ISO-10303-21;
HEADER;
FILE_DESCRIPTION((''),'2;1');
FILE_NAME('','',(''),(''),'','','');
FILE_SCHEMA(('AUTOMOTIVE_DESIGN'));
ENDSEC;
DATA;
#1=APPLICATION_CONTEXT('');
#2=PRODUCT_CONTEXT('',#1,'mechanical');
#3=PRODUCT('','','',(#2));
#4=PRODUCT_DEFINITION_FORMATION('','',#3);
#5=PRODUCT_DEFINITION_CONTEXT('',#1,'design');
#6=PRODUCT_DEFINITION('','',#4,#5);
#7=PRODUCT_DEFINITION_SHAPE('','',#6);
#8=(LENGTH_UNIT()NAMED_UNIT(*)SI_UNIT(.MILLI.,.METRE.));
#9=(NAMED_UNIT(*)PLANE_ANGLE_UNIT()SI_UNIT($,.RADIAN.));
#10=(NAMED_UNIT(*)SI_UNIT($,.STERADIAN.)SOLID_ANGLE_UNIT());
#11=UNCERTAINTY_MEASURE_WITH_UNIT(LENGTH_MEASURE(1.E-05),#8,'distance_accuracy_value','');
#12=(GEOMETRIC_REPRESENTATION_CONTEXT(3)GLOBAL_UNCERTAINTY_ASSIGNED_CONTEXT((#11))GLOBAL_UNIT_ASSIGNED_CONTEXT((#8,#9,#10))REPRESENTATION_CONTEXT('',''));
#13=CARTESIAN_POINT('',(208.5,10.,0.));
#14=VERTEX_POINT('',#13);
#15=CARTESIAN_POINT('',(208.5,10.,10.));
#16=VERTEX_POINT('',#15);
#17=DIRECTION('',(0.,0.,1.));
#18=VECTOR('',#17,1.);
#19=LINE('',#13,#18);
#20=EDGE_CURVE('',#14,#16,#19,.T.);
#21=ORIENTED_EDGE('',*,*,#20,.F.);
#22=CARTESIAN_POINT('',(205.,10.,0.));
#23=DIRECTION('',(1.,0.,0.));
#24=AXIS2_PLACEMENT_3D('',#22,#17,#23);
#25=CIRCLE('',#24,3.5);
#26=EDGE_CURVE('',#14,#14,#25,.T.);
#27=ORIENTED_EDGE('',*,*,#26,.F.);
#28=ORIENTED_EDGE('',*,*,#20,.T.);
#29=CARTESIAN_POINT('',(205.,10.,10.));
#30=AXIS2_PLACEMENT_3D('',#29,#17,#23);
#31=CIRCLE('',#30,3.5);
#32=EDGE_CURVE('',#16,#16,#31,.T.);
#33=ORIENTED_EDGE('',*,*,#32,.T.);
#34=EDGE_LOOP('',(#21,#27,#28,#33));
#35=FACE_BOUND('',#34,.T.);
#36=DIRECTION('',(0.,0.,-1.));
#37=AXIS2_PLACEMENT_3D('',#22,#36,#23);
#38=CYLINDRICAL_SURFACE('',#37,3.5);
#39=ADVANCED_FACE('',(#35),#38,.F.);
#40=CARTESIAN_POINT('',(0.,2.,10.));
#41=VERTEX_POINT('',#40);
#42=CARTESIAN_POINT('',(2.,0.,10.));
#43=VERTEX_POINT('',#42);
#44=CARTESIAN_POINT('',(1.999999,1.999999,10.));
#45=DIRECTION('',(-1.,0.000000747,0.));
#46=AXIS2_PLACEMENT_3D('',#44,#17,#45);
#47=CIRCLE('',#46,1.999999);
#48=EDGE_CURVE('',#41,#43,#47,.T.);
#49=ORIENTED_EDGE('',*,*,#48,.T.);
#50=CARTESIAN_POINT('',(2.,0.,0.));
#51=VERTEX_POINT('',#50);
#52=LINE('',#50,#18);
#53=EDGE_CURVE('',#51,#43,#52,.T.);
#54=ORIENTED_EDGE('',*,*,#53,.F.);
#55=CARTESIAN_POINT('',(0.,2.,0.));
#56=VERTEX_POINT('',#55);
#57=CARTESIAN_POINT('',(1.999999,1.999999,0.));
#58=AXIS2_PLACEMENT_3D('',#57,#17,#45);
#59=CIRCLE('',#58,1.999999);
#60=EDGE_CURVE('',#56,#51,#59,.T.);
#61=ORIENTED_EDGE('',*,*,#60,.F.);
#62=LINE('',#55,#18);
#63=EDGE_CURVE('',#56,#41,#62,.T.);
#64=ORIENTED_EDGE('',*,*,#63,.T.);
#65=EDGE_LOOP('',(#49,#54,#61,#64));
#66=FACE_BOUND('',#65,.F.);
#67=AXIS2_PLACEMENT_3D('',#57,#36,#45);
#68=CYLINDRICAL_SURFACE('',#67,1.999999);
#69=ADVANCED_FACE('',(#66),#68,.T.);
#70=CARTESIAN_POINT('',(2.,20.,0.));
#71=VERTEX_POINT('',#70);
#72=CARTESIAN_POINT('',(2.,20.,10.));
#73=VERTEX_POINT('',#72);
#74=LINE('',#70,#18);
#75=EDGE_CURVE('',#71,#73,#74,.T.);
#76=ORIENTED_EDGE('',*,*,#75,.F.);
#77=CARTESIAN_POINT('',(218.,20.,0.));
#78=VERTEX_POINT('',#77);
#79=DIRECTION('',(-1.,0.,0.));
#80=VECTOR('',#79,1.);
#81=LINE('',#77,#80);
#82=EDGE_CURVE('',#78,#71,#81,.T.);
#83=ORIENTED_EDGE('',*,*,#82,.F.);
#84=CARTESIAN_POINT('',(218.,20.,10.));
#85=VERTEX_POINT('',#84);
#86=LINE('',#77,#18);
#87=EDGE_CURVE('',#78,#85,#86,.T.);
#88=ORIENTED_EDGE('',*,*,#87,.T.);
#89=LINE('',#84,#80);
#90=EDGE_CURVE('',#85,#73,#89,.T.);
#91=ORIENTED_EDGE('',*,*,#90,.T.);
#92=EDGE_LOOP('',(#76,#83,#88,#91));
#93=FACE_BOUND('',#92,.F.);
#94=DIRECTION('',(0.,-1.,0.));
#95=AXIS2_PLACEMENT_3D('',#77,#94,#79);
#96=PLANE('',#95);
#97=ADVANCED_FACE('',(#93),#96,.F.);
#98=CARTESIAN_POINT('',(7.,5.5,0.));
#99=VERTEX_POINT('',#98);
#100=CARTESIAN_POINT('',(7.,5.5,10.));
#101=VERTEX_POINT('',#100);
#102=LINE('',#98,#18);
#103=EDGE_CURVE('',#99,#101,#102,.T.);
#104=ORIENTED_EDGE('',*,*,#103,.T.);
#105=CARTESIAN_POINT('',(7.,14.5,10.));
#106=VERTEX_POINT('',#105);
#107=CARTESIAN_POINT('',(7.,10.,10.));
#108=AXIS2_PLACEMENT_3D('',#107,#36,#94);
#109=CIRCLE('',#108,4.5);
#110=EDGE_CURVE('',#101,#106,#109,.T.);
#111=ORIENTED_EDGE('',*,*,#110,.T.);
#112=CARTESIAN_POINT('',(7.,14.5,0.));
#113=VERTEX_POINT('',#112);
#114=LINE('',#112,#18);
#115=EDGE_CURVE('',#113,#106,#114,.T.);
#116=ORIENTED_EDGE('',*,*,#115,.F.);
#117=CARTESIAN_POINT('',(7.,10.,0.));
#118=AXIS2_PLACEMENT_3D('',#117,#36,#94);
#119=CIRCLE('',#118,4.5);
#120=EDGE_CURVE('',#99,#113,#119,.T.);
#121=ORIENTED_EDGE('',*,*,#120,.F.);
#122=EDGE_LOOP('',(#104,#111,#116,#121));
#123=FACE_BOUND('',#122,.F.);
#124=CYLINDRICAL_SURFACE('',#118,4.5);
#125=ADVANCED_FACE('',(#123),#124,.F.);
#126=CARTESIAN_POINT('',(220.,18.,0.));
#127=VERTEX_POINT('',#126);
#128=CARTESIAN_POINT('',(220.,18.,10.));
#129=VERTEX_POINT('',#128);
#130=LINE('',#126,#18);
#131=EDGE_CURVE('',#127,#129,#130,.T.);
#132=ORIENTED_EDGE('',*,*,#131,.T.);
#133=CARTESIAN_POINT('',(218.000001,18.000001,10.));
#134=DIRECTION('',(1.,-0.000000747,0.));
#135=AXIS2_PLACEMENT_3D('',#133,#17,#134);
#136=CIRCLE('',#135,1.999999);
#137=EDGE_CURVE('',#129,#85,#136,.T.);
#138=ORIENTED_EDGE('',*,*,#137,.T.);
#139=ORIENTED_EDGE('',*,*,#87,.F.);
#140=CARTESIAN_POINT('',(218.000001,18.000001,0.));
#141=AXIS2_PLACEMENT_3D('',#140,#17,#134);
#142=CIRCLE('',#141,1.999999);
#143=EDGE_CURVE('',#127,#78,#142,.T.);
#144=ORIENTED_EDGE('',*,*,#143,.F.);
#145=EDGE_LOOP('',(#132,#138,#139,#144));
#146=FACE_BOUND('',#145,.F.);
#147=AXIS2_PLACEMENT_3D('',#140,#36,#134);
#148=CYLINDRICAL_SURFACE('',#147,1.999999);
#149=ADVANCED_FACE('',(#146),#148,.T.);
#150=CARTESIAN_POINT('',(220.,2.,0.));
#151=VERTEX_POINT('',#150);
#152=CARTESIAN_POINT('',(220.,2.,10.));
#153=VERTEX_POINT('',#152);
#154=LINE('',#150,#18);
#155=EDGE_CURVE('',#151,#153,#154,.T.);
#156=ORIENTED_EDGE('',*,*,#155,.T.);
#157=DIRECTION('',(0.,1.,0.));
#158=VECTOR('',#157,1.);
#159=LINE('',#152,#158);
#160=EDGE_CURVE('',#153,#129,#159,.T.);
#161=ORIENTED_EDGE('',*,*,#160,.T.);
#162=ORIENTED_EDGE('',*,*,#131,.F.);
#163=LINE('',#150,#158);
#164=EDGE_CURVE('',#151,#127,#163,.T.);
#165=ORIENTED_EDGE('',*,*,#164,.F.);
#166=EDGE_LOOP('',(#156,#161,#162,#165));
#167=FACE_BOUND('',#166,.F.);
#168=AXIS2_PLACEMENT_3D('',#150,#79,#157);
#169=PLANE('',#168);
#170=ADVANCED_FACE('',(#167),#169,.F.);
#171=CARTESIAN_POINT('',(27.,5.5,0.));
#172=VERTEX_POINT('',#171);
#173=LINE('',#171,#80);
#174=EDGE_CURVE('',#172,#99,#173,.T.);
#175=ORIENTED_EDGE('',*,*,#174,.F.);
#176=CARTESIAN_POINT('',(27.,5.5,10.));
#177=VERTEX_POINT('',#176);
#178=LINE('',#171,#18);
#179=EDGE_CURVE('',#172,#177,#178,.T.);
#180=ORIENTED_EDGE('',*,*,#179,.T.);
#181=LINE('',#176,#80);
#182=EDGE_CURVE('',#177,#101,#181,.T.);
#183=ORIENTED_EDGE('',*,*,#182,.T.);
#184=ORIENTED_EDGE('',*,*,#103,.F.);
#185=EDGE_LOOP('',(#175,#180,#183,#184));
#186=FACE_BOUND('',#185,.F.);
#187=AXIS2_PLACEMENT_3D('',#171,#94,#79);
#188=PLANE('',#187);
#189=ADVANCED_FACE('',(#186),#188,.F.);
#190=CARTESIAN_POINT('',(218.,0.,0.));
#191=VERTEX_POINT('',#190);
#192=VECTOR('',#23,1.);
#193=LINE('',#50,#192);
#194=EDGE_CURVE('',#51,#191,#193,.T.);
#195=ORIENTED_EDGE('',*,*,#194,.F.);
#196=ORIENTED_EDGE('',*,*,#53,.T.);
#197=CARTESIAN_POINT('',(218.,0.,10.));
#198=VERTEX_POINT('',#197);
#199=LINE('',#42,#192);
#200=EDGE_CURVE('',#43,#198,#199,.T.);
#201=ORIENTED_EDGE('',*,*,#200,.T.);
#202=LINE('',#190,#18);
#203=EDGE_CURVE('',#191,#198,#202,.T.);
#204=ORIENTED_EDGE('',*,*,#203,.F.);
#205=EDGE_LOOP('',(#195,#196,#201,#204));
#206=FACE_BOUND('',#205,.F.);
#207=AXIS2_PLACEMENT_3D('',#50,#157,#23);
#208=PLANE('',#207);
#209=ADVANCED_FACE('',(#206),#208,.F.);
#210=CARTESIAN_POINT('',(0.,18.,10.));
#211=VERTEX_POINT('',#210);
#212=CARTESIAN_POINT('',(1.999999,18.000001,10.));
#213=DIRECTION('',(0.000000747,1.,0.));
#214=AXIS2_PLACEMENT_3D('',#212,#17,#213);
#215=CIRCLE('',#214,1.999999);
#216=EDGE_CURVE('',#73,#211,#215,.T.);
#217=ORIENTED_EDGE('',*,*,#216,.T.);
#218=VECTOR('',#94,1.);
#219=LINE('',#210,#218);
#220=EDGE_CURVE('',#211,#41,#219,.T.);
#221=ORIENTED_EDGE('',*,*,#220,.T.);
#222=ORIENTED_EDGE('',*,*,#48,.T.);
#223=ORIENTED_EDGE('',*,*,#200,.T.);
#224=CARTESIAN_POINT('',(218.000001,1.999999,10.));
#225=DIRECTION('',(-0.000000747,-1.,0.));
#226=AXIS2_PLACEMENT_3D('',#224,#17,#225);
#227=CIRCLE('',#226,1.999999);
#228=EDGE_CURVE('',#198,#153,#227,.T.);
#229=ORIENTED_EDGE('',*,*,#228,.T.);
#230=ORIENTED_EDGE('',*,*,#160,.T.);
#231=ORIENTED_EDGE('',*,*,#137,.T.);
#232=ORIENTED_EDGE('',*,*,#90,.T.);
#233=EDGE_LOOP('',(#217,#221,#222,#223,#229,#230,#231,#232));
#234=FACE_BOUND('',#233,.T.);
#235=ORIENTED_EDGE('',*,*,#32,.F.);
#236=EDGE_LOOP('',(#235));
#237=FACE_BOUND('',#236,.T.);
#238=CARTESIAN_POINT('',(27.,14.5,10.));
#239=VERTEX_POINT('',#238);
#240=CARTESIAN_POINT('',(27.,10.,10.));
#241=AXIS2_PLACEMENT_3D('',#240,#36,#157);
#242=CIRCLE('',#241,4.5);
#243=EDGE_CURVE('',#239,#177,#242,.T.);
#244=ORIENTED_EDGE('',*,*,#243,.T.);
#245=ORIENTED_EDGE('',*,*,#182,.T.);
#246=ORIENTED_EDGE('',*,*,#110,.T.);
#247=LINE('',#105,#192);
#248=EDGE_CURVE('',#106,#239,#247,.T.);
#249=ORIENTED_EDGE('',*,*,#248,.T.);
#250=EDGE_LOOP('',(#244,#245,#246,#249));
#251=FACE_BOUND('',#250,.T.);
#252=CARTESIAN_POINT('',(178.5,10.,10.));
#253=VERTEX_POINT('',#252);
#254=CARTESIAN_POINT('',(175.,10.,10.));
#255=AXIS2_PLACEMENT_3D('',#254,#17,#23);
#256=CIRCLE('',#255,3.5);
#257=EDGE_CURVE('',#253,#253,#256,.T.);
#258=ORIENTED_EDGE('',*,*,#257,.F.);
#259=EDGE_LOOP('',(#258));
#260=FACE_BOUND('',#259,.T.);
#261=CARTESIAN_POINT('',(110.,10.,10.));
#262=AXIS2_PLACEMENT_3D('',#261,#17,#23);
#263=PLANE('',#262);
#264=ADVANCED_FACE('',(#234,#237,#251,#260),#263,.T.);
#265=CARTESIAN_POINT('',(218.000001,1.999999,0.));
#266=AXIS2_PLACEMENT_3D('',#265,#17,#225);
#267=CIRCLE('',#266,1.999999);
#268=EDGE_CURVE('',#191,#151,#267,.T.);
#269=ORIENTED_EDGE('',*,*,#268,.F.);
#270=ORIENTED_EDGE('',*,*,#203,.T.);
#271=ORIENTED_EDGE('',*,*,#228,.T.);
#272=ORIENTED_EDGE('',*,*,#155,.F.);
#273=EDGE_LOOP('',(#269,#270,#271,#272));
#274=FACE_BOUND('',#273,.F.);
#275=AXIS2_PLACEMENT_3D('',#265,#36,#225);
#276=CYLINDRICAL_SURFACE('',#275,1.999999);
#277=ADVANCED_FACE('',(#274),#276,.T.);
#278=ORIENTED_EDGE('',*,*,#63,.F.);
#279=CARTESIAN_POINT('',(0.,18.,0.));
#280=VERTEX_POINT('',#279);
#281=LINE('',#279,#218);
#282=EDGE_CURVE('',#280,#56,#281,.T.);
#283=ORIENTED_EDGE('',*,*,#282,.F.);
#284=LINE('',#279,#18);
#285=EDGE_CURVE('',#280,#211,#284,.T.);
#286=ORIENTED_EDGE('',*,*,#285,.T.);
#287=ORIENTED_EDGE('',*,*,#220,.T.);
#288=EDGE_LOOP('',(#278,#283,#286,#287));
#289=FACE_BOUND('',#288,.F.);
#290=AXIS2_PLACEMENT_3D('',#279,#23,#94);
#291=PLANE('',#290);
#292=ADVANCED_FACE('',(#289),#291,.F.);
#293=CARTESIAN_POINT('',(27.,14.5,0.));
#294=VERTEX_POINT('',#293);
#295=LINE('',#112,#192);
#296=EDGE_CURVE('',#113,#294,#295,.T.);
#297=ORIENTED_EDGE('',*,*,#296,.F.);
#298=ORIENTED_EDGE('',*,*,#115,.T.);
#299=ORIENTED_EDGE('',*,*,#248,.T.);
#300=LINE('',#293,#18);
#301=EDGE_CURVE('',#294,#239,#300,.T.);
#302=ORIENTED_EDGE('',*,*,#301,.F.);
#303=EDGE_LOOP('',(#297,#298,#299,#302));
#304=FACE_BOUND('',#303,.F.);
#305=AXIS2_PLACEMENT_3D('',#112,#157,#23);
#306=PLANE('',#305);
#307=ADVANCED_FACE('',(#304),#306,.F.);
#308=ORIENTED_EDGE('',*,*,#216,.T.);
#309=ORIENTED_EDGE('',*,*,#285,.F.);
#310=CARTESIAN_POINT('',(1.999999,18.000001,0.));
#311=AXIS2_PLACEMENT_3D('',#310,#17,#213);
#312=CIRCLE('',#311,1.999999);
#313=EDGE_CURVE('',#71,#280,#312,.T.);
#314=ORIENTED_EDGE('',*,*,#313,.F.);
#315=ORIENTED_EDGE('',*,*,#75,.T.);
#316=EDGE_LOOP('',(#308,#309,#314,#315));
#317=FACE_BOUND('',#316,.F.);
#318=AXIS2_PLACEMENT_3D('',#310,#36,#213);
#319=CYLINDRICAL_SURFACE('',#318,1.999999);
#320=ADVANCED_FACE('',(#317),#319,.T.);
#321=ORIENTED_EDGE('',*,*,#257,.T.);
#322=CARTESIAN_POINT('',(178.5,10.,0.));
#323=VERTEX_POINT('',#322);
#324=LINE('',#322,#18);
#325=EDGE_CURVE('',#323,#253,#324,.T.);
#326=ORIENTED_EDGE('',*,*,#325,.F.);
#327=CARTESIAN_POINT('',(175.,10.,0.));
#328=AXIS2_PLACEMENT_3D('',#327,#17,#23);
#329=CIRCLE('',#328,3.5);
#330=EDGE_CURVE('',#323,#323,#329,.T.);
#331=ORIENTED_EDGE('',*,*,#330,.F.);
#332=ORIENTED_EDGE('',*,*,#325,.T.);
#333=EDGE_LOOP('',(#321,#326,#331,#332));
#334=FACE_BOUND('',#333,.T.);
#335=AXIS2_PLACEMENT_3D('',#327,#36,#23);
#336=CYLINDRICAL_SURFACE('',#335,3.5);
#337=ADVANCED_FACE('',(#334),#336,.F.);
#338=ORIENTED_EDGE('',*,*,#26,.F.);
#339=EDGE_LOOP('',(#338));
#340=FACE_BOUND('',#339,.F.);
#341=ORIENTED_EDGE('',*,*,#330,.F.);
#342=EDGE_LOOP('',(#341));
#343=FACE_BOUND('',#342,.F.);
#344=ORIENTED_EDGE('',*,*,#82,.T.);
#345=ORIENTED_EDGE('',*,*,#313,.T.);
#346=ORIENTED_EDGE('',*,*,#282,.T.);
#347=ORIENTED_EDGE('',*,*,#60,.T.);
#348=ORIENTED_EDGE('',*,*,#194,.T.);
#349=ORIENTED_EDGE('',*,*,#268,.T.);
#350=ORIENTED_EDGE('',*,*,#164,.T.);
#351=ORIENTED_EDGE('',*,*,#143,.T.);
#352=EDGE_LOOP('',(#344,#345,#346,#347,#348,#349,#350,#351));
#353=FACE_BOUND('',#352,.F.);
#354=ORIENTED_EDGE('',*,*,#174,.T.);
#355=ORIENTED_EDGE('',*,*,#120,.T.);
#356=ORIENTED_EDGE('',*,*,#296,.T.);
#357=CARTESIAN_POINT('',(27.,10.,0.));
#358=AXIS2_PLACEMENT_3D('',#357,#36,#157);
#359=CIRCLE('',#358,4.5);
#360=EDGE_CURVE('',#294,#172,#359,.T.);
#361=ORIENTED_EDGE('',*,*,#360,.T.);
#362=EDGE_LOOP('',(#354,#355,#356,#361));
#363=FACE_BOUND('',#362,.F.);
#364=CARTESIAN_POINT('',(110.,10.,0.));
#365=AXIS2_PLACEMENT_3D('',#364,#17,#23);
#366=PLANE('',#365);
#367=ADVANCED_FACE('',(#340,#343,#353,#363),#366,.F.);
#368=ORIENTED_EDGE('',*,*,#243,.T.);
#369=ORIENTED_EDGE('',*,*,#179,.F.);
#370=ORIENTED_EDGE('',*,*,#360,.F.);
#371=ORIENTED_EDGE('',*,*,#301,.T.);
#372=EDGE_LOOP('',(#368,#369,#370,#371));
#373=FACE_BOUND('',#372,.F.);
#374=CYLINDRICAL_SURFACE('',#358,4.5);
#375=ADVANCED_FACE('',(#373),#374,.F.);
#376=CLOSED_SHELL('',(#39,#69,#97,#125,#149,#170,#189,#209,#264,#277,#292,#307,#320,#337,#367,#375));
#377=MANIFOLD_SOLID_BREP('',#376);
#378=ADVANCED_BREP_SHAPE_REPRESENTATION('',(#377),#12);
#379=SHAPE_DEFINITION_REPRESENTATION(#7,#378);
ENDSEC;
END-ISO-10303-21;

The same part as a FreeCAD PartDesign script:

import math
import FreeCAD as App
import Part
import Sketcher

doc = App.newDocument("Part")
params = doc.addObject("Spreadsheet::Sheet", "Params")
for row, (alias, value) in enumerate([
    ("sketch1_diameter", "7 mm"),
    ("sketch1_radius", "1.999999 mm"),
    ("sketch1_radius2", "4.5 mm"),
    ("sketch1_width", "216 mm"),
    ("sketch1_width2", "20 mm"),
    ("pad1_length", "10 mm"),
], start=1):
    params.set(f"A{row}", alias)
    params.set(f"B{row}", "=" + value)
    params.setAlias(f"B{row}", alias)

body = doc.addObject("PartDesign::Body", "Body")

sketch1 = doc.addObject("Sketcher::SketchObject", "Sketch")
body.addObject(sketch1)
sketch1.AttachmentSupport = (doc.XY_Plane, [""])
sketch1.MapMode = "FlatFace"
sketch1.addGeometry(Part.ArcOfCircle(Part.Circle(App.Vector(1.999999, 1.999999, 0), App.Vector(0, 0, 1), 1.999999), math.radians(179.999957), math.radians(270.000043)), False)
sketch1.addGeometry(Part.LineSegment(App.Vector(2, 0, 0), App.Vector(218, 0, 0)), False)
sketch1.addGeometry(Part.ArcOfCircle(Part.Circle(App.Vector(218.000001, 1.999999, 0), App.Vector(0, 0, 1), 1.999999), math.radians(-90.000043), math.radians(0.000043)), False)
sketch1.addGeometry(Part.LineSegment(App.Vector(220, 2, 0), App.Vector(220, 18, 0)), False)
sketch1.addGeometry(Part.ArcOfCircle(Part.Circle(App.Vector(218.000001, 18.000001, 0), App.Vector(0, 0, 1), 1.999999), math.radians(-0.000043), math.radians(90.000043)), False)
sketch1.addGeometry(Part.LineSegment(App.Vector(218, 20, 0), App.Vector(2, 20, 0)), False)
sketch1.addGeometry(Part.ArcOfCircle(Part.Circle(App.Vector(1.999999, 18.000001, 0), App.Vector(0, 0, 1), 1.999999), math.radians(89.999957), math.radians(180.000043)), False)
sketch1.addGeometry(Part.LineSegment(App.Vector(0, 18, 0), App.Vector(0, 2, 0)), False)
sketch1.addGeometry(Part.LineSegment(App.Vector(27, 5.5, 0), App.Vector(7, 5.5, 0)), False)
sketch1.addGeometry(Part.ArcOfCircle(Part.Circle(App.Vector(7, 10, 0), App.Vector(0, 0, 1), 4.5), math.radians(90), math.radians(270)), False)
sketch1.addGeometry(Part.LineSegment(App.Vector(7, 14.5, 0), App.Vector(27, 14.5, 0)), False)
sketch1.addGeometry(Part.ArcOfCircle(Part.Circle(App.Vector(27, 10, 0), App.Vector(0, 0, 1), 4.5), math.radians(-90), math.radians(90)), False)
sketch1.addGeometry(Part.Circle(App.Vector(175, 10, 0), App.Vector(0, 0, 1), 3.5), False)
sketch1.addGeometry(Part.Circle(App.Vector(205, 10, 0), App.Vector(0, 0, 1), 3.5), False)
sketch1.addConstraint(Sketcher.Constraint("Tangent", 0, 2, 1, 1))
sketch1.addConstraint(Sketcher.Constraint("Tangent", 1, 2, 2, 1))
sketch1.addConstraint(Sketcher.Constraint("Tangent", 2, 2, 3, 1))
sketch1.addConstraint(Sketcher.Constraint("Tangent", 3, 2, 4, 1))
sketch1.addConstraint(Sketcher.Constraint("Tangent", 4, 2, 5, 1))
sketch1.addConstraint(Sketcher.Constraint("Tangent", 5, 2, 6, 1))
sketch1.addConstraint(Sketcher.Constraint("Tangent", 6, 2, 7, 1))
sketch1.addConstraint(Sketcher.Constraint("Tangent", 7, 2, 0, 1))
sketch1.addConstraint(Sketcher.Constraint("Tangent", 8, 2, 9, 2))
sketch1.addConstraint(Sketcher.Constraint("Tangent", 9, 1, 10, 1))
sketch1.addConstraint(Sketcher.Constraint("Tangent", 10, 2, 11, 2))
sketch1.addConstraint(Sketcher.Constraint("Tangent", 11, 1, 8, 1))
sketch1.addConstraint(Sketcher.Constraint("Horizontal", 1))
sketch1.addConstraint(Sketcher.Constraint("Vertical", 3))
sketch1.addConstraint(Sketcher.Constraint("Horizontal", 5))
sketch1.addConstraint(Sketcher.Constraint("Vertical", 7))
sketch1.addConstraint(Sketcher.Constraint("Horizontal", 8))
sketch1.addConstraint(Sketcher.Constraint("Horizontal", 10))
sketch1.addConstraint(Sketcher.Constraint("Equal", 0, 2))
sketch1.addConstraint(Sketcher.Constraint("Equal", 2, 4))
sketch1.addConstraint(Sketcher.Constraint("Equal", 4, 6))
sketch1.addConstraint(Sketcher.Constraint("Equal", 12, 13))
sketch1.addConstraint(Sketcher.Constraint("PointOnObject", 0, 2, -1))
sketch1.addConstraint(Sketcher.Constraint("PointOnObject", 6, 2, -2))
sketch1.addConstraint(Sketcher.Constraint("Horizontal", 11, 3, 12, 3))
sketch1.addConstraint(Sketcher.Constraint("Horizontal", 12, 3, 13, 3))
sketch1.addConstraint(Sketcher.Constraint("Diameter", 12, 7.0))
sketch1.addConstraint(Sketcher.Constraint("Radius", 0, 1.999999))
sketch1.addConstraint(Sketcher.Constraint("Radius", 9, 4.5))
sketch1.addConstraint(Sketcher.Constraint("DistanceX", 1, 1, 1, 2, 216.0))
sketch1.addConstraint(Sketcher.Constraint("DistanceX", 8, 2, 8, 1, 20.0))
sketch1.addConstraint(Sketcher.Constraint("DistanceY", 3, 1, 3, 2, 16.0))
sketch1.addConstraint(Sketcher.Constraint("DistanceX", -1, 1, 9, 3, 7.0))
sketch1.addConstraint(Sketcher.Constraint("DistanceY", -1, 1, 9, 3, 10.0))
sketch1.addConstraint(Sketcher.Constraint("DistanceX", -1, 1, 12, 3, 175.0))
sketch1.addConstraint(Sketcher.Constraint("DistanceX", -1, 1, 13, 3, 205.0))
sketch1.setExpression("Constraints[26]", "Params.sketch1_diameter")
sketch1.setExpression("Constraints[27]", "Params.sketch1_radius")
sketch1.setExpression("Constraints[28]", "Params.sketch1_radius2")
sketch1.setExpression("Constraints[29]", "Params.sketch1_width")
sketch1.setExpression("Constraints[30]", "Params.sketch1_width2")
pad1 = doc.addObject("PartDesign::Pad", "Pad")
body.addObject(pad1)
pad1.Profile = sketch1
pad1.setExpression("Length", "Params.pad1_length")

doc.recompute()
